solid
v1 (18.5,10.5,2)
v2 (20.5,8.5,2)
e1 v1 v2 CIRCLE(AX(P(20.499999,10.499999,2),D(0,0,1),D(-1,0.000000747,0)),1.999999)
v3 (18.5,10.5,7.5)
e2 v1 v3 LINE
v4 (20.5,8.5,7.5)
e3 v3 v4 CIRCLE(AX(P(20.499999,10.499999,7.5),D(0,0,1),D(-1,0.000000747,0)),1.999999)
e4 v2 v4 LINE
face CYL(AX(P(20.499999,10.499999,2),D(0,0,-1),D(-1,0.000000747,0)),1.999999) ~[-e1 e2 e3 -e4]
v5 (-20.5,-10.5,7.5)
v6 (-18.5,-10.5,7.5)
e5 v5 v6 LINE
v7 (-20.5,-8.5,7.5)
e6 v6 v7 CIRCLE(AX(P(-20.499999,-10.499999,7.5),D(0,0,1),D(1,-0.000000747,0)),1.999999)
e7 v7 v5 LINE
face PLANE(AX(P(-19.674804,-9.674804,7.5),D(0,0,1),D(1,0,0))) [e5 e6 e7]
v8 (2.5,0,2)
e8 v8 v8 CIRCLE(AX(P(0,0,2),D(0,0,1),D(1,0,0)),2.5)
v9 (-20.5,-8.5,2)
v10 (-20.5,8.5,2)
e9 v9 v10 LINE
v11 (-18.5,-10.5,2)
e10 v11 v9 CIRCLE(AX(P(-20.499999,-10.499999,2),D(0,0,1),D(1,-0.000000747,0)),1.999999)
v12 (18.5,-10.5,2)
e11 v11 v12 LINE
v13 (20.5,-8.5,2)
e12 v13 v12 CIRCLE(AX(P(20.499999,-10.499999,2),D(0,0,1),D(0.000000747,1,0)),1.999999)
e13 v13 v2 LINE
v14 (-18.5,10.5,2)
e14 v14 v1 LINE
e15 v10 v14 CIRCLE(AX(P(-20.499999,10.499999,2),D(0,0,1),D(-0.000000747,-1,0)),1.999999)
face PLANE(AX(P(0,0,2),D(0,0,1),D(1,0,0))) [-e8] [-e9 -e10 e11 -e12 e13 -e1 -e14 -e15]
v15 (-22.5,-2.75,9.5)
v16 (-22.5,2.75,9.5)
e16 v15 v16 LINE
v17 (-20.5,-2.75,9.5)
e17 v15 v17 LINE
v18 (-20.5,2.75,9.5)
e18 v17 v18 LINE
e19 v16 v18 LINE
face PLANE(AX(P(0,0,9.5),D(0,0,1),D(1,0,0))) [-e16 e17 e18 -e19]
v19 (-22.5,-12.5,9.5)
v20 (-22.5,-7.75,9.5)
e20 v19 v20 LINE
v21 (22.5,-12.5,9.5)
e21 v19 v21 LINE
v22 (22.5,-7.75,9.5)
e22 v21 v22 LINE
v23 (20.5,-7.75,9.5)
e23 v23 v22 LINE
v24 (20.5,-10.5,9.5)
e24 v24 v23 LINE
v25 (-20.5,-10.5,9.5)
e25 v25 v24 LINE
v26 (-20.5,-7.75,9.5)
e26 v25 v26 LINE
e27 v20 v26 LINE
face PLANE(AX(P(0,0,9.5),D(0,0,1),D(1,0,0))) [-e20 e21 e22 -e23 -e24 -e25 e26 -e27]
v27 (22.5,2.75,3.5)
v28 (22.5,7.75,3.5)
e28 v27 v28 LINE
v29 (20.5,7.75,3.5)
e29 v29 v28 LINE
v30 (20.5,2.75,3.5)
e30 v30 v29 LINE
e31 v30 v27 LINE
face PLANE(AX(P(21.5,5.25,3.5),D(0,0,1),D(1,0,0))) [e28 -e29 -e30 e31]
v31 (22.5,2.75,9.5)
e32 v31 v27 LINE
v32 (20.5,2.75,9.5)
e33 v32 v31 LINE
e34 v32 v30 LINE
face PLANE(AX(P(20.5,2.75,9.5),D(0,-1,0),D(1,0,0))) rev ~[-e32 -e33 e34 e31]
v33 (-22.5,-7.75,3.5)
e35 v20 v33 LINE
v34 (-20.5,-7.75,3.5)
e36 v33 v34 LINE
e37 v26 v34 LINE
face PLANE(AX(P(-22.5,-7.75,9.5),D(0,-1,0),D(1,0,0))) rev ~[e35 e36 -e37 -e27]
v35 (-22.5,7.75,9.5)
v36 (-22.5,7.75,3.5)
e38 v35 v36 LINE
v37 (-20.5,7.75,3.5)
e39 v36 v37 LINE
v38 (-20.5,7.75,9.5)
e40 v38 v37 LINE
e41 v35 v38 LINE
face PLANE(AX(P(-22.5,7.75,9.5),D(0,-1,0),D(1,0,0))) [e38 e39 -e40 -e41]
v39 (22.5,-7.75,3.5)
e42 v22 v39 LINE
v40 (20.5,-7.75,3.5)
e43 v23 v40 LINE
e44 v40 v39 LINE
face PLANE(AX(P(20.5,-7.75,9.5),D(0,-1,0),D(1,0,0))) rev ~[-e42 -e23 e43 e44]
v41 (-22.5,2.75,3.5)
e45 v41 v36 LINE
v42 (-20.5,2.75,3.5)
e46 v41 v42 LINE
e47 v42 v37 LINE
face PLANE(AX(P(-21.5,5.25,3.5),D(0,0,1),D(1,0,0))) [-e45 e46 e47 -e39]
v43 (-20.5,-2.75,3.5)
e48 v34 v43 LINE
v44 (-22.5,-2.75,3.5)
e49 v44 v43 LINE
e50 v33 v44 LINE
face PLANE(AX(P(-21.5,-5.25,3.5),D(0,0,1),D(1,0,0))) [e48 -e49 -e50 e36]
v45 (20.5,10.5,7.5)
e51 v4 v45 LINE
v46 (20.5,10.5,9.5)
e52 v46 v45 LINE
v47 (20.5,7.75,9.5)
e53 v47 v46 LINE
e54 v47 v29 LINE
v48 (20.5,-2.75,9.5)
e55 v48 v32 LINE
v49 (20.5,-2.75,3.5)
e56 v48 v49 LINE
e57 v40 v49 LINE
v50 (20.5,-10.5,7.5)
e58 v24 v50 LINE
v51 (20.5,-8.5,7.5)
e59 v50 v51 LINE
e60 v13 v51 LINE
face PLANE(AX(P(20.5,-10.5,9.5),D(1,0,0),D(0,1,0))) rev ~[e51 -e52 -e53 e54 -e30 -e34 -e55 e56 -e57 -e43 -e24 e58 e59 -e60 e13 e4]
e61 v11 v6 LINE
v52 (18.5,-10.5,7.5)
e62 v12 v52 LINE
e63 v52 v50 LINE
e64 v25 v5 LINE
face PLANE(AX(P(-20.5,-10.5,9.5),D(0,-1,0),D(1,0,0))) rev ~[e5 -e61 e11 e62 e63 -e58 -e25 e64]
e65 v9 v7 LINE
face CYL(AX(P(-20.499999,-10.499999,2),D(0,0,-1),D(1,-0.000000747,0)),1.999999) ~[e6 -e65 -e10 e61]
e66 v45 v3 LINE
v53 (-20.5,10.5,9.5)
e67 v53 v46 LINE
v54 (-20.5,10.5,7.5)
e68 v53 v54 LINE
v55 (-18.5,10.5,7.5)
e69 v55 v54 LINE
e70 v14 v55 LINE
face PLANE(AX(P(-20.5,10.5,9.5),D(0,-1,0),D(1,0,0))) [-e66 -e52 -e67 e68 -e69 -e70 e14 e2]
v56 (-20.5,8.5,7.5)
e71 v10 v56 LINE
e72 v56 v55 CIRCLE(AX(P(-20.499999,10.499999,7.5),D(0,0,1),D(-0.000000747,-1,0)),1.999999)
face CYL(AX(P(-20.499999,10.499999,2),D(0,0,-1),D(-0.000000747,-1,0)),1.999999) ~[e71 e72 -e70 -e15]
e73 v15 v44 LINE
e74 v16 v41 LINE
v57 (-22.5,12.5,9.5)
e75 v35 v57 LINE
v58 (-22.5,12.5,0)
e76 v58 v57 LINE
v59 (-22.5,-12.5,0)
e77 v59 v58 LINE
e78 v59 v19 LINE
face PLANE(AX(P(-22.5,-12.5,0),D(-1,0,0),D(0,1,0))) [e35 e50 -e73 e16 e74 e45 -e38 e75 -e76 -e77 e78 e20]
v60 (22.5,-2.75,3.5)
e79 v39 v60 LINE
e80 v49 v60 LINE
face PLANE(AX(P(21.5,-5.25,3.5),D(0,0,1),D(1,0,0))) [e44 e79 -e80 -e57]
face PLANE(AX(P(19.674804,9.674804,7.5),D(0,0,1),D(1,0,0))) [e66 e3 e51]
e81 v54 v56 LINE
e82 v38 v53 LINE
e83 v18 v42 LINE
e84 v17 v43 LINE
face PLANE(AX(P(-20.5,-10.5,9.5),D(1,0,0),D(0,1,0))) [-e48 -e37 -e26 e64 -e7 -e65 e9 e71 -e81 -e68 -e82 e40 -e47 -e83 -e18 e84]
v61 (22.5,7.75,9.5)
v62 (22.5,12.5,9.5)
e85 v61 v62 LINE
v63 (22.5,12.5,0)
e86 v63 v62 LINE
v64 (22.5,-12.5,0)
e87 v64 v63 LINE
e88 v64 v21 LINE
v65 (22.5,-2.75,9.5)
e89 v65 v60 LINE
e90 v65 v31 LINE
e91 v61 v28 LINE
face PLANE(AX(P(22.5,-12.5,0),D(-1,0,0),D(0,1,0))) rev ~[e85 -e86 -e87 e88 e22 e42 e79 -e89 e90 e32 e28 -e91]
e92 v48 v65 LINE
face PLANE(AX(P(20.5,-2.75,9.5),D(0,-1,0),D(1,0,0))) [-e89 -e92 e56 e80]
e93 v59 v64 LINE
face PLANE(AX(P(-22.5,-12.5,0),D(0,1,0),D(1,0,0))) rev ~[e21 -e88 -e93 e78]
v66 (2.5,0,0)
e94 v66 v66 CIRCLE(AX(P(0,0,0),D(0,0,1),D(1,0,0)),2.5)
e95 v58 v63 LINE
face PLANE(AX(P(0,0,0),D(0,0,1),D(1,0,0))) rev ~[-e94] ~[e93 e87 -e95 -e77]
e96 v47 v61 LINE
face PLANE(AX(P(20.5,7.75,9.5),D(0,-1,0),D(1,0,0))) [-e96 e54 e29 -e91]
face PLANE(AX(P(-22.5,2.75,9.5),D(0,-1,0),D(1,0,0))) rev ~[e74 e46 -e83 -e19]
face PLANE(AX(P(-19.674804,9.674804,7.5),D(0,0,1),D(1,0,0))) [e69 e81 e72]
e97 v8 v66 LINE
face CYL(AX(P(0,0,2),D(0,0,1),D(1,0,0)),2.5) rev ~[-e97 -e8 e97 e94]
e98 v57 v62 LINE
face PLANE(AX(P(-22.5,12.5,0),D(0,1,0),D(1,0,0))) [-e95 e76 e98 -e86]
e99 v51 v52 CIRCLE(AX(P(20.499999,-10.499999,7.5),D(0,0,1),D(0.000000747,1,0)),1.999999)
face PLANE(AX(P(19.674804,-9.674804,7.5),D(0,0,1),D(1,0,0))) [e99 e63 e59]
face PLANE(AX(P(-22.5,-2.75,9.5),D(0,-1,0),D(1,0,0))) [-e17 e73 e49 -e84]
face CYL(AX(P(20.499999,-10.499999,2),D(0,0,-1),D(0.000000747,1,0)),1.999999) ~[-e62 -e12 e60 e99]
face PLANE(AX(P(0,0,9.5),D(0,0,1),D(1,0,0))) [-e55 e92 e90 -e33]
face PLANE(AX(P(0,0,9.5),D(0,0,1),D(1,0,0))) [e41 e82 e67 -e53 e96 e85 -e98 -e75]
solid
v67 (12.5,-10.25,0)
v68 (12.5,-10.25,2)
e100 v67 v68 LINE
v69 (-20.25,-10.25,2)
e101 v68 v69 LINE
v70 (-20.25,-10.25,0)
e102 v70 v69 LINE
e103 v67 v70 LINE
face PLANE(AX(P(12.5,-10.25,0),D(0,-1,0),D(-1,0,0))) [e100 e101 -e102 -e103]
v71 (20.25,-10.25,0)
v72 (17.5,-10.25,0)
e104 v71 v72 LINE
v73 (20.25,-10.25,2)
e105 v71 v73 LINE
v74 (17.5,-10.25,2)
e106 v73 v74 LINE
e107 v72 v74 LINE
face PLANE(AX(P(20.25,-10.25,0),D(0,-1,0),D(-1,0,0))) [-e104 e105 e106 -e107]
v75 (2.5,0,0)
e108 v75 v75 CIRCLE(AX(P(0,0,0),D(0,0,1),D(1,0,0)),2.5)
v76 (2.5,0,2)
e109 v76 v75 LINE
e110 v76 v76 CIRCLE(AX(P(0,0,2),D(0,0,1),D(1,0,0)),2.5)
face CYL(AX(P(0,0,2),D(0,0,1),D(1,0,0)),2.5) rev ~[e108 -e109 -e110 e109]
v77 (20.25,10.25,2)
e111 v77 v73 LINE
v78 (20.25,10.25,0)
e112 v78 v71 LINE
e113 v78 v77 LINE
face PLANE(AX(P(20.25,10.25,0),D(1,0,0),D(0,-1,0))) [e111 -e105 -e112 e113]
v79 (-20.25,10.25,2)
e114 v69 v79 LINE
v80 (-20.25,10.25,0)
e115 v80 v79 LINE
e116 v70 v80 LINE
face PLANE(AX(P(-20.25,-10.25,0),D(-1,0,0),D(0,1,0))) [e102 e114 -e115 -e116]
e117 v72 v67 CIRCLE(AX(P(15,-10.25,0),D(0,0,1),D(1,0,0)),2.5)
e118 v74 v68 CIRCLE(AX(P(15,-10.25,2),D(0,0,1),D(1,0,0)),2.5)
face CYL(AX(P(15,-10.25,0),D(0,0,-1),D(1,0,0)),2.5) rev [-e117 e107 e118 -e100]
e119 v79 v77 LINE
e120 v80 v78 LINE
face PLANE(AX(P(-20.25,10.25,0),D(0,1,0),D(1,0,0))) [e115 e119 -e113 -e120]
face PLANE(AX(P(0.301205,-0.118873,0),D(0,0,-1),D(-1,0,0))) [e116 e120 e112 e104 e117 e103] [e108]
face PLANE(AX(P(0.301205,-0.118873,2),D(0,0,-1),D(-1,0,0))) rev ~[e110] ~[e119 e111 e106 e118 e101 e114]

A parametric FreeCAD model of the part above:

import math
import FreeCAD as App
import Part
import Sketcher

V = App.Vector

doc = App.newDocument("Part")
body = doc.addObject("PartDesign::Body", "Body")

# Sketch on XY plane
sketch1 = doc.addObject("Sketcher::SketchObject", "Sketch")
body.addObject(sketch1)
sketch1.AttachmentSupport = (doc.XY_Plane, [""])
sketch1.MapMode = "FlatFace"
sketch1.addGeometry([
    Part.LineSegment(V(-22.5, 12.5, 0), V(-22.5, -12.5, 0)),
    Part.LineSegment(V(-22.5, -12.5, 0), V(22.5, -12.5, 0)),
    Part.LineSegment(V(22.5, -12.5, 0), V(22.5, 12.5, 0)),
    Part.LineSegment(V(22.5, 12.5, 0), V(-22.5, 12.5, 0)),
], False)
sketch1.addConstraint([
    Sketcher.Constraint("Coincident", 0, 2, 1, 1),
    Sketcher.Constraint("Coincident", 1, 2, 2, 1),
    Sketcher.Constraint("Coincident", 2, 2, 3, 1),
    Sketcher.Constraint("Coincident", 3, 2, 0, 1),
    Sketcher.Constraint("Vertical", 0),
    Sketcher.Constraint("Horizontal", 1),
    Sketcher.Constraint("Vertical", 2),
    Sketcher.Constraint("Horizontal", 3),
    Sketcher.Constraint("Symmetric", 0, 2, 2, 2, -1, 1),
    Sketcher.Constraint("DistanceX", 1, 1, 1, 2, 45.0),
    Sketcher.Constraint("DistanceY", 0, 2, 0, 1, 25.0),
])
pad1 = doc.addObject("PartDesign::Pad", "Pad")
body.addObject(pad1)
pad1.Profile = sketch1
pad1.Length = 9.5

# Sketch on XY plane
sketch2 = doc.addObject("Sketcher::SketchObject", "Sketch001")
body.addObject(sketch2)
sketch2.AttachmentSupport = (doc.XY_Plane, [""])
sketch2.MapMode = "FlatFace"
sketch2.AttachmentOffset = App.Placement(V(0, 0, 9.5), App.Rotation())
sketch2.addGeometry([
    Part.LineSegment(V(-20.5, 10.5, 0), V(-20.5, -10.5, 0)),
    Part.LineSegment(V(-20.5, -10.5, 0), V(20.5, -10.5, 0)),
    Part.LineSegment(V(20.5, -10.5, 0), V(20.5, 10.5, 0)),
    Part.LineSegment(V(20.5, 10.5, 0), V(-20.5, 10.5, 0)),
], False)
sketch2.addConstraint([
    Sketcher.Constraint("Coincident", 0, 2, 1, 1),
    Sketcher.Constraint("Coincident", 1, 2, 2, 1),
    Sketcher.Constraint("Coincident", 2, 2, 3, 1),
    Sketcher.Constraint("Coincident", 3, 2, 0, 1),
    Sketcher.Constraint("Vertical", 0),
    Sketcher.Constraint("Horizontal", 1),
    Sketcher.Constraint("Vertical", 2),
    Sketcher.Constraint("Horizontal", 3),
    Sketcher.Constraint("Symmetric", 0, 2, 2, 2, -1, 1),
    Sketcher.Constraint("DistanceX", 1, 1, 1, 2, 41.0),
    Sketcher.Constraint("DistanceY", 0, 2, 0, 1, 21.0),
])
pocket1 = doc.addObject("PartDesign::Pocket", "Pocket")
body.addObject(pocket1)
pocket1.Profile = sketch2
pocket1.Length = 7.5

# Sketch on XY plane
sketch3 = doc.addObject("Sketcher::SketchObject", "Sketch002")
body.addObject(sketch3)
sketch3.AttachmentSupport = (doc.XY_Plane, [""])
sketch3.MapMode = "FlatFace"
sketch3.AttachmentOffset = App.Placement(V(0, 0, 2), App.Rotation())
sketch3.addGeometry(Part.Circle(V(0, 0, 0), V(0, 0, 1), 2.5), False)
sketch3.addConstraint([
    Sketcher.Constraint("Coincident", 0, 3, -1, 1),
    Sketcher.Constraint("Diameter", 0, 5.0),
])
pocket2 = doc.addObject("PartDesign::Pocket", "Pocket001")
body.addObject(pocket2)
pocket2.Profile = sketch3
pocket2.Type = "ThroughAll"

# Sketch on XY plane
sketch4 = doc.addObject("Sketcher::SketchObject", "Sketch003")
body.addObject(sketch4)
sketch4.AttachmentSupport = (doc.XY_Plane, [""])
sketch4.MapMode = "FlatFace"
sketch4.AttachmentOffset = App.Placement(V(0, 0, 9.5), App.Rotation())
sketch4.addGeometry([
    Part.LineSegment(V(-22.5, 7.75, 0), V(-22.5, 2.75, 0)),  # 0
    Part.LineSegment(V(-22.5, 2.75, 0), V(-20.5, 2.75, 0)),  # 1
    Part.LineSegment(V(-20.5, 2.75, 0), V(-20.5, 7.75, 0)),  # 2
    Part.LineSegment(V(-20.5, 7.75, 0), V(-22.5, 7.75, 0)),  # 3
    Part.LineSegment(V(-22.5, -2.75, 0), V(-22.5, -7.75, 0)),  # 4
    Part.LineSegment(V(-22.5, -7.75, 0), V(-20.5, -7.75, 0)),  # 5
    Part.LineSegment(V(-20.5, -7.75, 0), V(-20.5, -2.75, 0)),  # 6
    Part.LineSegment(V(-20.5, -2.75, 0), V(-22.5, -2.75, 0)),  # 7
    Part.LineSegment(V(20.5, 7.75, 0), V(20.5, 2.75, 0)),  # 8
    Part.LineSegment(V(20.5, 2.75, 0), V(22.5, 2.75, 0)),  # 9
    Part.LineSegment(V(22.5, 2.75, 0), V(22.5, 7.75, 0)),  # 10
    Part.LineSegment(V(22.5, 7.75, 0), V(20.5, 7.75, 0)),  # 11
    Part.LineSegment(V(20.5, -2.75, 0), V(20.5, -7.75, 0)),  # 12
    Part.LineSegment(V(20.5, -7.75, 0), V(22.5, -7.75, 0)),  # 13
    Part.LineSegment(V(22.5, -7.75, 0), V(22.5, -2.75, 0)),  # 14
    Part.LineSegment(V(22.5, -2.75, 0), V(20.5, -2.75, 0)),  # 15
], False)
sketch4.addConstraint([
    Sketcher.Constraint("Coincident", 0, 2, 1, 1),
    Sketcher.Constraint("Coincident", 1, 2, 2, 1),
    Sketcher.Constraint("Coincident", 2, 2, 3, 1),
    Sketcher.Constraint("Coincident", 3, 2, 0, 1),
    Sketcher.Constraint("Coincident", 4, 2, 5, 1),
    Sketcher.Constraint("Coincident", 5, 2, 6, 1),
    Sketcher.Constraint("Coincident", 6, 2, 7, 1),
    Sketcher.Constraint("Coincident", 7, 2, 4, 1),
    Sketcher.Constraint("Coincident", 8, 2, 9, 1),
    Sketcher.Constraint("Coincident", 9, 2, 10, 1),
    Sketcher.Constraint("Coincident", 10, 2, 11, 1),
    Sketcher.Constraint("Coincident", 11, 2, 8, 1),
    Sketcher.Constraint("Coincident", 12, 2, 13, 1),
    Sketcher.Constraint("Coincident", 13, 2, 14, 1),
    Sketcher.Constraint("Coincident", 14, 2, 15, 1),
    Sketcher.Constraint("Coincident", 15, 2, 12, 1),
    Sketcher.Constraint("Vertical", 0),
    Sketcher.Constraint("Horizontal", 1),
    Sketcher.Constraint("Vertical", 2),
    Sketcher.Constraint("Horizontal", 3),
    Sketcher.Constraint("Vertical", 4),
    Sketcher.Constraint("Horizontal", 5),
    Sketcher.Constraint("Vertical", 6),
    Sketcher.Constraint("Horizontal", 7),
    Sketcher.Constraint("Vertical", 8),
    Sketcher.Constraint("Horizontal", 9),
    Sketcher.Constraint("Vertical", 10),
    Sketcher.Constraint("Horizontal", 11),
    Sketcher.Constraint("Vertical", 12),
    Sketcher.Constraint("Horizontal", 13),
    Sketcher.Constraint("Vertical", 14),
    Sketcher.Constraint("Horizontal", 15),
    Sketcher.Constraint("Symmetric", 6, 2, 8, 2, -1, 1),
    Sketcher.Constraint("Symmetric", 4, 2, 10, 2, -1, 1),
    Sketcher.Constraint("Symmetric", 2, 2, 12, 2, -1, 1),
    Sketcher.Constraint("Symmetric", 0, 2, 14, 2, -1, 1),
    Sketcher.Constraint("Symmetric", 1, 2, 8, 2, -2),
    Sketcher.Constraint("Symmetric", 3, 2, 10, 2, -2),
    Sketcher.Constraint("DistanceX", 1, 1, 1, 2, 2.0),
    Sketcher.Constraint("DistanceY", 0, 2, 0, 1, 5.0),
    Sketcher.Constraint("DistanceX", 1, 2, 8, 2, 41.0),
    Sketcher.Constraint("DistanceY", 4, 2, 0, 2, 10.5),
])
pocket3 = doc.addObject("PartDesign::Pocket", "Pocket002")
body.addObject(pocket3)
pocket3.Profile = sketch4
pocket3.Length = 6

# Sketch on XY plane
sketch5 = doc.addObject("Sketcher::SketchObject", "Sketch004")
body.addObject(sketch5)
sketch5.AttachmentSupport = (doc.XY_Plane, [""])
sketch5.MapMode = "FlatFace"
sketch5.AttachmentOffset = App.Placement(V(0, 0, 2), App.Rotation())
sketch5.addGeometry([
    Part.ArcOfCircle(Part.Circle(V(-20.499999, 10.499999, 0), V(0, 0, 1), 1.999999), math.radians(-90.000043), math.radians(0.000043)),  # 0
    Part.LineSegment(V(-18.5, 10.5, 0), V(-20.5, 10.5, 0)),  # 1
    Part.LineSegment(V(-20.5, 10.5, 0), V(-20.5, 8.5, 0)),  # 2
    Part.ArcOfCircle(Part.Circle(V(-20.499999, -10.499999, 0), V(0, 0, 1), 1.999999), math.radians(-0.000043), math.radians(90.000043)),  # 3
    Part.LineSegment(V(-20.5, -8.5, 0), V(-20.5, -10.5, 0)),  # 4
    Part.LineSegment(V(-20.5, -10.5, 0), V(-18.5, -10.5, 0)),  # 5
    Part.ArcOfCircle(Part.Circle(V(20.499999, -10.499999, 0), V(0, 0, 1), 1.999999), math.radians(89.999957), math.radians(180.000043)),  # 6
    Part.LineSegment(V(18.5, -10.5, 0), V(20.5, -10.5, 0)),  # 7
    Part.LineSegment(V(20.5, -10.5, 0), V(20.5, -8.5, 0)),  # 8
    Part.ArcOfCircle(Part.Circle(V(20.499999, 10.499999, 0), V(0, 0, 1), 1.999999), math.radians(179.999957), math.radians(270.000043)),  # 9
    Part.LineSegment(V(20.5, 8.5, 0), V(20.5, 10.5, 0)),  # 10
    Part.LineSegment(V(20.5, 10.5, 0), V(18.5, 10.5, 0)),  # 11
], False)
sketch5.addConstraint([
    Sketcher.Constraint("Coincident", 0, 2, 1, 1),
    Sketcher.Constraint("Coincident", 1, 2, 2, 1),
    Sketcher.Constraint("Coincident", 2, 2, 0, 1),
    Sketcher.Constraint("Coincident", 3, 2, 4, 1),
    Sketcher.Constraint("Coincident", 4, 2, 5, 1),
    Sketcher.Constraint("Coincident", 5, 2, 3, 1),
    Sketcher.Constraint("Coincident", 6, 2, 7, 1),
    Sketcher.Constraint("Coincident", 7, 2, 8, 1),
    Sketcher.Constraint("Coincident", 8, 2, 6, 1),
    Sketcher.Constraint("Coincident", 9, 2, 10, 1),
    Sketcher.Constraint("Coincident", 10, 2, 11, 1),
    Sketcher.Constraint("Coincident", 11, 2, 9, 1),
    Sketcher.Constraint("Horizontal", 1),
    Sketcher.Constraint("Vertical", 2),
    Sketcher.Constraint("Vertical", 4),
    Sketcher.Constraint("Horizontal", 5),
    Sketcher.Constraint("Horizontal", 7),
    Sketcher.Constraint("Vertical", 8),
    Sketcher.Constraint("Vertical", 10),
    Sketcher.Constraint("Horizontal", 11),
    Sketcher.Constraint("Coincident", 1, 2, 0, 3),
    Sketcher.Constraint("Coincident", 4, 2, 3, 3),
    Sketcher.Constraint("Coincident", 7, 2, 6, 3),
    Sketcher.Constraint("Coincident", 10, 2, 9, 3),
    Sketcher.Constraint("Equal", 0, 3),
    Sketcher.Constraint("Equal", 3, 6),
    Sketcher.Constraint("Equal", 6, 9),
    Sketcher.Constraint("Symmetric", 0, 3, 6, 3, -1, 1),
    Sketcher.Constraint("Symmetric", 3, 3, 9, 3, -1, 1),
    Sketcher.Constraint("Symmetric", 3, 3, 6, 3, -2),
    Sketcher.Constraint("Radius", 0, 1.999999),
    Sketcher.Constraint("DistanceY", 3, 3, 0, 2, 20.999999),
    Sketcher.Constraint("DistanceX", 0, 2, 9, 3, 38.999999),
])
pad2 = doc.addObject("PartDesign::Pad", "Pad001")
body.addObject(pad2)
pad2.Profile = sketch5
pad2.Length = 5.5
body2 = doc.addObject("PartDesign::Body", "Body001")

# Sketch on XY plane
sketch6 = doc.addObject("Sketcher::SketchObject", "Sketch005")
body2.addObject(sketch6)
sketch6.AttachmentSupport = (doc.getObject("XY_Plane001"), [""])
sketch6.MapMode = "FlatFace"
sketch6.addGeometry([
    Part.LineSegment(V(20.25, 10.25, 0), V(-20.25, 10.25, 0)),  # 0
    Part.LineSegment(V(-20.25, 10.25, 0), V(-20.25, -10.25, 0)),  # 1
    Part.LineSegment(V(-20.25, -10.25, 0), V(12.5, -10.25, 0)),  # 2
    Part.ArcOfCircle(Part.Circle(V(15, -10.25, 0), V(0, 0, 1), 2.5), math.radians(0), math.radians(180)),  # 3
    Part.LineSegment(V(17.5, -10.25, 0), V(20.25, -10.25, 0)),  # 4
    Part.LineSegment(V(20.25, -10.25, 0), V(20.25, 10.25, 0)),  # 5
], False)
sketch6.addConstraint([
    Sketcher.Constraint("Coincident", 0, 2, 1, 1),
    Sketcher.Constraint("Coincident", 1, 2, 2, 1),
    Sketcher.Constraint("Coincident", 2, 2, 3, 2),
    Sketcher.Constraint("Coincident", 3, 1, 4, 1),
    Sketcher.Constraint("Coincident", 4, 2, 5, 1),
    Sketcher.Constraint("Coincident", 5, 2, 0, 1),
    Sketcher.Constraint("Horizontal", 0),
    Sketcher.Constraint("Vertical", 1),
    Sketcher.Constraint("Horizontal", 2),
    Sketcher.Constraint("Horizontal", 4),
    Sketcher.Constraint("Vertical", 5),
    Sketcher.Constraint("Symmetric", 0, 2, 4, 2, -1, 1),
    Sketcher.Constraint("Horizontal", 3, 3, 1, 2),
    Sketcher.Constraint("Horizontal", 2, 2, 3, 1),
    Sketcher.Constraint("Radius", 3, 2.5),
    Sketcher.Constraint("DistanceX", 0, 2, 0, 1, 40.5),
    Sketcher.Constraint("DistanceY", 1, 2, 1, 1, 20.5),
    Sketcher.Constraint("DistanceX", -1, 1, 3, 3, 15.0),
])
pad3 = doc.addObject("PartDesign::Pad", "Pad002")
body2.addObject(pad3)
pad3.Profile = sketch6
pad3.Length = 2

# Sketch on XY plane
sketch7 = doc.addObject("Sketcher::SketchObject", "Sketch006")
body2.addObject(sketch7)
sketch7.AttachmentSupport = (doc.getObject("XY_Plane001"), [""])
sketch7.MapMode = "FlatFace"
sketch7.AttachmentOffset = App.Placement(V(0, 0, 2), App.Rotation())
sketch7.addGeometry(Part.Circle(V(0, 0, 0), V(0, 0, 1), 2.5), False)
sketch7.addConstraint([
    Sketcher.Constraint("Coincident", 0, 3, -1, 1),
    Sketcher.Constraint("Diameter", 0, 5.0),
])
pocket4 = doc.addObject("PartDesign::Pocket", "Pocket003")
body2.addObject(pocket4)
pocket4.Profile = sketch7
pocket4.Type = "ThroughAll"

doc.recompute()
